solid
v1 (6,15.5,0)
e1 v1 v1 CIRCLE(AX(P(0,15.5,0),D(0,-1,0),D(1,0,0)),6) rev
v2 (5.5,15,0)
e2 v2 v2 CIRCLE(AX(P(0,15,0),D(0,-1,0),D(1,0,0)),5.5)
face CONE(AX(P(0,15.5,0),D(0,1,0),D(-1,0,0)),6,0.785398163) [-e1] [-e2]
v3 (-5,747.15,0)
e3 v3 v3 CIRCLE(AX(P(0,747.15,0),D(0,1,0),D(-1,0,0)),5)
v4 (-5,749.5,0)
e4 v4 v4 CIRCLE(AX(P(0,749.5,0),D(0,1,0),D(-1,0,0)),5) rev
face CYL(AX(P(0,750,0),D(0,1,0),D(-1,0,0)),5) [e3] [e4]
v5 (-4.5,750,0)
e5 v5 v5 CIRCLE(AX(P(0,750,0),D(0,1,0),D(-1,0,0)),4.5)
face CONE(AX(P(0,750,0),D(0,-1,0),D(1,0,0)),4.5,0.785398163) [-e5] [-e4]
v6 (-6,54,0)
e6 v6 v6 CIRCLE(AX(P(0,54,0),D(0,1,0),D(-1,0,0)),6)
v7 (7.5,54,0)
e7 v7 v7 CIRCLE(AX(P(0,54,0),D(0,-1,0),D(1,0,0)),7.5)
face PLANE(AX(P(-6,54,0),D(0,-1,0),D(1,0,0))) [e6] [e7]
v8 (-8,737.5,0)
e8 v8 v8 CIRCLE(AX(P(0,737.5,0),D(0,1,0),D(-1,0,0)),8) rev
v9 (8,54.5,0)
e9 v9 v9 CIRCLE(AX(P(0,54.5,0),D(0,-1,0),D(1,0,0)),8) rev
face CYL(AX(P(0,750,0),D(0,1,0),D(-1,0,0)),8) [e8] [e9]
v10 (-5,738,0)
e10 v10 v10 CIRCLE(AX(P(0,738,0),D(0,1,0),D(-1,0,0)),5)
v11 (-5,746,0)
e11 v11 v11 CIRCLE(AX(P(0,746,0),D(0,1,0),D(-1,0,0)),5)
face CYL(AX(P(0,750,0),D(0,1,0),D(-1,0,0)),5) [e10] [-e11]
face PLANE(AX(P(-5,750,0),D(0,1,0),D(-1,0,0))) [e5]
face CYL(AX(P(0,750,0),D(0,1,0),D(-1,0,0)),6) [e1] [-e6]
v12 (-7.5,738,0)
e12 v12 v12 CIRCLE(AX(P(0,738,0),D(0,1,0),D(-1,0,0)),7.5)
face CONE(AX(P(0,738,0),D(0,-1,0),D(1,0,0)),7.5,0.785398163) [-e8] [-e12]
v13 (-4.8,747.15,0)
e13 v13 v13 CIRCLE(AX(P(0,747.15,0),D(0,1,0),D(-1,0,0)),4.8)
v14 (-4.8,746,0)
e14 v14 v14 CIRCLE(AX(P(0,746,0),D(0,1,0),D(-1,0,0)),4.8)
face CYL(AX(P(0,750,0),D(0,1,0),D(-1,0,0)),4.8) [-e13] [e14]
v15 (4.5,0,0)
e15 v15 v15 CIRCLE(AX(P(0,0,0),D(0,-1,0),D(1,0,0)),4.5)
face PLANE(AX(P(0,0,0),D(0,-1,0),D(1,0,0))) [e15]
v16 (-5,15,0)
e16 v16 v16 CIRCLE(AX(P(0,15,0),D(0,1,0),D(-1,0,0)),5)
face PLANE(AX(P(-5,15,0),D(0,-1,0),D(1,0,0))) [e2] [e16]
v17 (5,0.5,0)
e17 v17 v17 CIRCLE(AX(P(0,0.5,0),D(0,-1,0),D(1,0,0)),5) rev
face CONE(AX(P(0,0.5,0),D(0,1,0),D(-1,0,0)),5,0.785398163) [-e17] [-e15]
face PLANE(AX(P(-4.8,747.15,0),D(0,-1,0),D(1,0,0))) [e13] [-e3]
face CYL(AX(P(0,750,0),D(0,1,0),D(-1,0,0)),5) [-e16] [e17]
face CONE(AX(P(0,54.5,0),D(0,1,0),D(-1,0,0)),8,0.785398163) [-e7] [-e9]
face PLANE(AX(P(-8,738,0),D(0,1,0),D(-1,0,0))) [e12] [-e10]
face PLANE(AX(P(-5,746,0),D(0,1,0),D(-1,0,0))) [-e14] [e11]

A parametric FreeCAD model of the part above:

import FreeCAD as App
import Part
import Sketcher

V = App.Vector


def edges_at(feature, points):
    """Names of the edges that pass closest to the given points."""
    edges = feature.Shape.Edges
    near = lambda p: min(range(len(edges)), key=lambda i: edges[i].distToShape(Part.Vertex(*p))[0])
    return sorted({f"Edge{near(p) + 1}" for p in points})


def add_polygon(sketch, points):
    """Adds a closed chain of lines whose ends are joined by coincident constraints."""
    first, n = sketch.GeometryCount, len(points)
    for a, b in zip(points, points[1:] + points[:1]):
        sketch.addGeometry(Part.LineSegment(App.Vector(*a, 0), App.Vector(*b, 0)), False)
    for i in range(n):
        sketch.addConstraint(Sketcher.Constraint("Coincident", first + i, 2, first + (i + 1) % n, 1))

doc = App.newDocument("Part")
body = doc.addObject("PartDesign::Body", "Body")

sketch1 = body.newObject("Sketcher::SketchObject", "Sketch")
sketch1.AttachmentSupport = (doc.getObject("XY_Plane"), [""])
sketch1.MapMode = "FlatFace"
add_polygon(sketch1, [(-5, 0), (0, 0), (0, 750), (-5, 750), (-5, 747.15), (-4.8, 747.15), (-4.8, 746), (-5, 746), (-5, 738), (-8, 738), (-8, 54), (-6, 54), (-6, 15), (-5, 15)])
sketch1.addConstraint([
    Sketcher.Constraint("Horizontal", 0),
    Sketcher.Constraint("Vertical", 1),
    Sketcher.Constraint("Horizontal", 2),
    Sketcher.Constraint("Vertical", 3),
    Sketcher.Constraint("Horizontal", 4),
    Sketcher.Constraint("Vertical", 5),
    Sketcher.Constraint("Horizontal", 6),
    Sketcher.Constraint("Vertical", 7),
    Sketcher.Constraint("Horizontal", 8),
    Sketcher.Constraint("Vertical", 9),
    Sketcher.Constraint("Horizontal", 10),
    Sketcher.Constraint("Vertical", 11),
    Sketcher.Constraint("Horizontal", 12),
    Sketcher.Constraint("Vertical", 13),
    Sketcher.Constraint("Coincident", 0, 2, -1, 1),
    Sketcher.Constraint("Vertical", 3, 2, 6, 2),
    Sketcher.Constraint("Vertical", 7, 2, 12, 2),
    Sketcher.Constraint("DistanceX", 0, 1, 0, 2, 5.0),
    Sketcher.Constraint("DistanceX", 8, 2, 8, 1, 3.0),
    Sketcher.Constraint("DistanceX", 10, 1, 10, 2, 2.0),
    Sketcher.Constraint("DistanceY", 1, 1, 1, 2, 750.0),
    Sketcher.Constraint("DistanceY", 7, 2, 7, 1, 8.0),
    Sketcher.Constraint("DistanceY", 9, 2, 9, 1, 684.0),
    Sketcher.Constraint("DistanceY", 11, 2, 11, 1, 39.0),
    Sketcher.Constraint("DistanceY", 13, 2, 13, 1, 15.0),
    Sketcher.Constraint("DistanceX", 4, 1, 4, 2, 0.2),
    Sketcher.Constraint("DistanceY", 3, 2, 3, 1, 2.85),
])
revolution = body.newObject("PartDesign::Revolution", "Revolution")
revolution.Profile = sketch1
revolution.ReferenceAxis = (sketch1, ["V_Axis"])
revolution.Angle = 360
doc.recompute()

chamfer = body.newObject("PartDesign::Chamfer", "Chamfer")
chamfer.Base = (revolution, edges_at(revolution, [
    (8, 738, 0),
    (8, 54, 0),
    (6, 15, 0),
    (5, 0, 0),
    (5, 750, 0),
]))
chamfer.Size = 0.5

doc.recompute()
